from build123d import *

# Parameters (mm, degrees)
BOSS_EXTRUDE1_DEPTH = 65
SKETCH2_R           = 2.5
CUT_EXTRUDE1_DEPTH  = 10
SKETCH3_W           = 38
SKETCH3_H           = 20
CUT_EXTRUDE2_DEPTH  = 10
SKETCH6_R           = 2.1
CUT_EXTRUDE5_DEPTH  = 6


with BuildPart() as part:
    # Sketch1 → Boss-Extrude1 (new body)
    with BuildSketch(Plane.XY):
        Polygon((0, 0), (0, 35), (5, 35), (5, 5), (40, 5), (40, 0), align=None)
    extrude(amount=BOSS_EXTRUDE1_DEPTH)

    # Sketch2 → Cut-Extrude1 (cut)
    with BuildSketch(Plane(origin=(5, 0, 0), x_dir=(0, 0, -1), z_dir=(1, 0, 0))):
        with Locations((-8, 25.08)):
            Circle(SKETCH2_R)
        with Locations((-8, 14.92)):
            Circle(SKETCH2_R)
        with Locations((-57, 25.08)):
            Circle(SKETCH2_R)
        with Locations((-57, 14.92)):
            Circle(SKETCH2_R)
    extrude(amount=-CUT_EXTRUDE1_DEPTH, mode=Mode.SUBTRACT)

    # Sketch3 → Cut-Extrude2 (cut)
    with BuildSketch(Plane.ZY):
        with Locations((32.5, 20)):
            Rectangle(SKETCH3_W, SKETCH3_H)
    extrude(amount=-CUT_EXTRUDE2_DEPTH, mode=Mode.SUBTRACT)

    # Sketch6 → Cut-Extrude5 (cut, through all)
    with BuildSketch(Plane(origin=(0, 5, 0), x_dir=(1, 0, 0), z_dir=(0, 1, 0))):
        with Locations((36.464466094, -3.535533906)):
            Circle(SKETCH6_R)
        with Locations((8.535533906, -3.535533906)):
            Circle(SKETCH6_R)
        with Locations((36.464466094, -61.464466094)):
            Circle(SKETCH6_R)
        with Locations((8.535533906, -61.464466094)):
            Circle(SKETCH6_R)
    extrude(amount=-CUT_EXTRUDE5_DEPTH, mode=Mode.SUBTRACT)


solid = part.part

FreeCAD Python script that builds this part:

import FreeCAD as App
import Part
import Sketcher

doc = App.newDocument("Part")
body = doc.addObject("PartDesign::Body", "Body")

sketch1 = doc.addObject("Sketcher::SketchObject", "Sketch")
body.addObject(sketch1)
sketch1.AttachmentSupport = (doc.XY_Plane, [""])
sketch1.MapMode = "FlatFace"
sketch1.addGeometry(Part.LineSegment(App.Vector(0, 35, 0), App.Vector(0, 0, 0)), False)
sketch1.addGeometry(Part.LineSegment(App.Vector(0, 0, 0), App.Vector(40, 0, 0)), False)
sketch1.addGeometry(Part.LineSegment(App.Vector(40, 0, 0), App.Vector(40, 5, 0)), False)
sketch1.addGeometry(Part.LineSegment(App.Vector(40, 5, 0), App.Vector(5, 5, 0)), False)
sketch1.addGeometry(Part.LineSegment(App.Vector(5, 5, 0), App.Vector(5, 35, 0)), False)
sketch1.addGeometry(Part.LineSegment(App.Vector(5, 35, 0), App.Vector(0, 35, 0)), False)
sketch1.addConstraint(Sketcher.Constraint("Coincident", 0, 2, 1, 1))
sketch1.addConstraint(Sketcher.Constraint("Coincident", 1, 2, 2, 1))
sketch1.addConstraint(Sketcher.Constraint("Coincident", 2, 2, 3, 1))
sketch1.addConstraint(Sketcher.Constraint("Coincident", 3, 2, 4, 1))
sketch1.addConstraint(Sketcher.Constraint("Coincident", 4, 2, 5, 1))
sketch1.addConstraint(Sketcher.Constraint("Coincident", 5, 2, 0, 1))
sketch1.addConstraint(Sketcher.Constraint("Vertical", 0))
sketch1.addConstraint(Sketcher.Constraint("Horizontal", 1))
sketch1.addConstraint(Sketcher.Constraint("Vertical", 2))
sketch1.addConstraint(Sketcher.Constraint("Horizontal", 3))
sketch1.addConstraint(Sketcher.Constraint("Vertical", 4))
sketch1.addConstraint(Sketcher.Constraint("Horizontal", 5))
sketch1.addConstraint(Sketcher.Constraint("Coincident", 0, 2, -1, 1))
sketch1.addConstraint(Sketcher.Constraint("Equal", 3, 0))
sketch1.addConstraint(Sketcher.Constraint("Equal", 5, 2))
sketch1.addConstraint(Sketcher.Constraint("DistanceX", 1, 1, 1, 2, 40.0))
sketch1.addConstraint(Sketcher.Constraint("DistanceX", 3, 2, 3, 1, 35.0))
pad1 = doc.addObject("PartDesign::Pad", "Pad")
body.addObject(pad1)
pad1.Profile = sketch1
pad1.Length = 65

sketch2 = doc.addObject("Sketcher::SketchObject", "Sketch001")
body.addObject(sketch2)
sketch2.AttachmentSupport = (doc.YZ_Plane, [""])
sketch2.MapMode = "FlatFace"
sketch2.AttachmentOffset = App.Placement(App.Vector(0, 0, 5), App.Rotation())
sketch2.addGeometry(Part.Circle(App.Vector(25.1, 8, 0), App.Vector(0, 0, 1), 2.5), False)
sketch2.addGeometry(Part.Circle(App.Vector(14.9, 8, 0), App.Vector(0, 0, 1), 2.5), False)
sketch2.addGeometry(Part.Circle(App.Vector(25.1, 57, 0), App.Vector(0, 0, 1), 2.5), False)
sketch2.addGeometry(Part.Circle(App.Vector(14.9, 57, 0), App.Vector(0, 0, 1), 2.5), False)
sketch2.addConstraint(Sketcher.Constraint("Equal", 0, 1))
sketch2.addConstraint(Sketcher.Constraint("Equal", 1, 2))
sketch2.addConstraint(Sketcher.Constraint("Equal", 2, 3))
sketch2.addConstraint(Sketcher.Constraint("Horizontal", 0, 3, 1, 3))
sketch2.addConstraint(Sketcher.Constraint("Horizontal", 2, 3, 3, 3))
sketch2.addConstraint(Sketcher.Constraint("Vertical", 0, 3, 2, 3))
sketch2.addConstraint(Sketcher.Constraint("Vertical", 1, 3, 3, 3))
sketch2.addConstraint(Sketcher.Constraint("Diameter", 0, 5.0))
sketch2.addConstraint(Sketcher.Constraint("DistanceY", -1, 1, 0, 3, 8.0))
sketch2.addConstraint(Sketcher.Constraint("DistanceY", -1, 1, 2, 3, 57.0))
sketch2.addConstraint(Sketcher.Constraint("DistanceX", -1, 1, 0, 3, 25.08))
sketch2.addConstraint(Sketcher.Constraint("DistanceX", -1, 1, 1, 3, 14.92))
pocket1 = doc.addObject("PartDesign::Pocket", "Pocket")
body.addObject(pocket1)
pocket1.Profile = sketch2
pocket1.Length = 10

sketch3 = doc.addObject("Sketcher::SketchObject", "Sketch002")
body.addObject(sketch3)
sketch3.AttachmentSupport = (doc.YZ_Plane, [""])
sketch3.MapMode = "FlatFace"
sketch3.addGeometry(Part.LineSegment(App.Vector(30, 14, 0), App.Vector(10, 14, 0)), False)
sketch3.addGeometry(Part.LineSegment(App.Vector(10, 14, 0), App.Vector(10, 52, 0)), False)
sketch3.addGeometry(Part.LineSegment(App.Vector(10, 52, 0), App.Vector(30, 52, 0)), False)
sketch3.addGeometry(Part.LineSegment(App.Vector(30, 52, 0), App.Vector(30, 14, 0)), False)
sketch3.addConstraint(Sketcher.Constraint("Coincident", 0, 2, 1, 1))
sketch3.addConstraint(Sketcher.Constraint("Coincident", 1, 2, 2, 1))
sketch3.addConstraint(Sketcher.Constraint("Coincident", 2, 2, 3, 1))
sketch3.addConstraint(Sketcher.Constraint("Coincident", 3, 2, 0, 1))
sketch3.addConstraint(Sketcher.Constraint("Horizontal", 0))
sketch3.addConstraint(Sketcher.Constraint("Vertical", 1))
sketch3.addConstraint(Sketcher.Constraint("Horizontal", 2))
sketch3.addConstraint(Sketcher.Constraint("Vertical", 3))
sketch3.addConstraint(Sketcher.Constraint("DistanceX", 0, 2, 0, 1, 20.0))
sketch3.addConstraint(Sketcher.Constraint("DistanceY", 1, 1, 1, 2, 38.0))
sketch3.addConstraint(Sketcher.Constraint("DistanceX", -1, 1, 0, 2, 10.0))
sketch3.addConstraint(Sketcher.Constraint("DistanceY", -1, 1, 0, 2, 13.5))
pocket2 = doc.addObject("PartDesign::Pocket", "Pocket001")
body.addObject(pocket2)
pocket2.Profile = sketch3
pocket2.Length = 10
pocket2.Reversed = True

sketch4 = doc.addObject("Sketcher::SketchObject", "Sketch003")
body.addObject(sketch4)
sketch4.AttachmentSupport = (doc.XZ_Plane, [""])
sketch4.MapMode = "FlatFace"
sketch4.AttachmentOffset = App.Placement(App.Vector(0, 0, -5), App.Rotation())
sketch4.addGeometry(Part.Circle(App.Vector(36.5, 3.5, 0), App.Vector(0, 0, 1), 2.1), False)
sketch4.addGeometry(Part.Circle(App.Vector(8.5, 3.5, 0), App.Vector(0, 0, 1), 2.1), False)
sketch4.addGeometry(Part.Circle(App.Vector(36.5, 61.5, 0), App.Vector(0, 0, 1), 2.1), False)
sketch4.addGeometry(Part.Circle(App.Vector(8.5, 61.5, 0), App.Vector(0, 0, 1), 2.1), False)
sketch4.addConstraint(Sketcher.Constraint("Equal", 0, 1))
sketch4.addConstraint(Sketcher.Constraint("Equal", 1, 2))
sketch4.addConstraint(Sketcher.Constraint("Equal", 2, 3))
sketch4.addConstraint(Sketcher.Constraint("Horizontal", 0, 3, 1, 3))
sketch4.addConstraint(Sketcher.Constraint("Horizontal", 2, 3, 3, 3))
sketch4.addConstraint(Sketcher.Constraint("Vertical", 0, 3, 2, 3))
sketch4.addConstraint(Sketcher.Constraint("Vertical", 1, 3, 3, 3))
sketch4.addConstraint(Sketcher.Constraint("Diameter", 0, 4.2))
sketch4.addConstraint(Sketcher.Constraint("DistanceX", -1, 1, 0, 3, 36.464466))
sketch4.addConstraint(Sketcher.Constraint("DistanceY", -1, 1, 0, 3, 3.535534))
sketch4.addConstraint(Sketcher.Constraint("DistanceX", -1, 1, 1, 3, 8.535534))
sketch4.addConstraint(Sketcher.Constraint("DistanceY", -1, 1, 2, 3, 61.464466))
pocket3 = doc.addObject("PartDesign::Pocket", "Pocket002")
body.addObject(pocket3)
pocket3.Profile = sketch4
pocket3.Type = "ThroughAll"
pocket3.Reversed = True

doc.recompute()
